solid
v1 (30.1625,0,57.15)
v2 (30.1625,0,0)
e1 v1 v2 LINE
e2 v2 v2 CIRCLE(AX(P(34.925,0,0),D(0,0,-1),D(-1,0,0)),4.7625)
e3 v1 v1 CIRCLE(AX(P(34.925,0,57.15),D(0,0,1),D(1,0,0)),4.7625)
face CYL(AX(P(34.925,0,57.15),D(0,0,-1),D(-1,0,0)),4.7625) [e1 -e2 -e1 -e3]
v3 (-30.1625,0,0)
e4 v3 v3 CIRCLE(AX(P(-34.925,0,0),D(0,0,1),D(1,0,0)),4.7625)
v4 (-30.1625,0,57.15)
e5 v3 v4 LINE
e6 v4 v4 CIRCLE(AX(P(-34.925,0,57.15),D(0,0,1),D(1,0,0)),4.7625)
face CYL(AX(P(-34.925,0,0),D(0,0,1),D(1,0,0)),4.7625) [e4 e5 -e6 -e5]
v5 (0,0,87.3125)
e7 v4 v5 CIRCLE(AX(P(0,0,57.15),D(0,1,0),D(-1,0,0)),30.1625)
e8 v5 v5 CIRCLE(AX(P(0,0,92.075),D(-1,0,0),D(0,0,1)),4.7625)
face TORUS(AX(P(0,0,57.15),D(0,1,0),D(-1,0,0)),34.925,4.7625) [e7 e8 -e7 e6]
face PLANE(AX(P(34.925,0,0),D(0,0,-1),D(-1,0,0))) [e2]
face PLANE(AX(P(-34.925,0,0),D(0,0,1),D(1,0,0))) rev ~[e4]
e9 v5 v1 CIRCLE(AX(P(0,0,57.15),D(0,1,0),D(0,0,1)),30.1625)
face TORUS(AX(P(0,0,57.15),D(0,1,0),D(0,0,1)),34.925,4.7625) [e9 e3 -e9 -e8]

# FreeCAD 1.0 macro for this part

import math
import FreeCAD as App
import Part
import Sketcher
from FreeCAD import Vector
Q = App.Units.Quantity

doc = App.newDocument("Part")
body = doc.addObject("PartDesign::Body", "Body")

# Sketch on XY plane
sketch1 = body.newObject("Sketcher::SketchObject", "Sketch")
sketch1.AttachmentSupport = (doc.getObject("XY_Plane"), [""])
sketch1.MapMode = "FlatFace"
sketch1.addGeometry(Part.Circle(Vector(-34.925, 0, 0), Vector(0, 0, 1), 4.7625), False)
sketch1.addConstraint([
    Sketcher.Constraint("PointOnObject", 0, 3, -1),
    Sketcher.Constraint("Diameter", 0, Q("0.375 in")),
    Sketcher.Constraint("DistanceX", 0, 3, -1, 1, Q("1.375 in")),
])

# Sketch on XZ plane
sketch2 = body.newObject("Sketcher::SketchObject", "Sketch001")
sketch2.AttachmentSupport = (doc.getObject("XZ_Plane"), [""])
sketch2.MapMode = "FlatFace"
sketch2.addGeometry([
    Part.LineSegment(Vector(-34.925, 0, 0), Vector(-34.925, 57.15, 0)),
    Part.ArcOfCircle(Part.Circle(Vector(0, 57.15, 0), Vector(0, 0, 1), 34.925), math.radians(90), math.radians(180)),
    Part.ArcOfCircle(Part.Circle(Vector(0, 57.15, 0), Vector(0, 0, 1), 34.925), math.radians(0), math.radians(90)),
    Part.LineSegment(Vector(34.925, 57.15, 0), Vector(34.925, 0, 0)),
], False)
sketch2.addConstraint([
    Sketcher.Constraint("Tangent", 0, 2, 1, 2),
    Sketcher.Constraint("Tangent", 1, 1, 2, 2),
    Sketcher.Constraint("Tangent", 2, 1, 3, 1),
    Sketcher.Constraint("Vertical", 0),
    Sketcher.Constraint("Vertical", 3),
    Sketcher.Constraint("Equal", 1, 2),
    Sketcher.Constraint("Symmetric", 0, 1, 3, 2, -1, 1),
    Sketcher.Constraint("PointOnObject", 0, 1, -1),
    Sketcher.Constraint("PointOnObject", 1, 1, -2),
    Sketcher.Constraint("Radius", 1, Q("1.375 in")),
    Sketcher.Constraint("DistanceY", 0, 1, 0, 2, Q("2.25 in")),
])
doc.recompute()

additivepipe = body.newObject("PartDesign::AdditivePipe", "AdditivePipe")
additivepipe.Profile = sketch1
additivepipe.Spine = (sketch2, ["Edge1", "Edge2", "Edge3", "Edge4"])

doc.recompute()
